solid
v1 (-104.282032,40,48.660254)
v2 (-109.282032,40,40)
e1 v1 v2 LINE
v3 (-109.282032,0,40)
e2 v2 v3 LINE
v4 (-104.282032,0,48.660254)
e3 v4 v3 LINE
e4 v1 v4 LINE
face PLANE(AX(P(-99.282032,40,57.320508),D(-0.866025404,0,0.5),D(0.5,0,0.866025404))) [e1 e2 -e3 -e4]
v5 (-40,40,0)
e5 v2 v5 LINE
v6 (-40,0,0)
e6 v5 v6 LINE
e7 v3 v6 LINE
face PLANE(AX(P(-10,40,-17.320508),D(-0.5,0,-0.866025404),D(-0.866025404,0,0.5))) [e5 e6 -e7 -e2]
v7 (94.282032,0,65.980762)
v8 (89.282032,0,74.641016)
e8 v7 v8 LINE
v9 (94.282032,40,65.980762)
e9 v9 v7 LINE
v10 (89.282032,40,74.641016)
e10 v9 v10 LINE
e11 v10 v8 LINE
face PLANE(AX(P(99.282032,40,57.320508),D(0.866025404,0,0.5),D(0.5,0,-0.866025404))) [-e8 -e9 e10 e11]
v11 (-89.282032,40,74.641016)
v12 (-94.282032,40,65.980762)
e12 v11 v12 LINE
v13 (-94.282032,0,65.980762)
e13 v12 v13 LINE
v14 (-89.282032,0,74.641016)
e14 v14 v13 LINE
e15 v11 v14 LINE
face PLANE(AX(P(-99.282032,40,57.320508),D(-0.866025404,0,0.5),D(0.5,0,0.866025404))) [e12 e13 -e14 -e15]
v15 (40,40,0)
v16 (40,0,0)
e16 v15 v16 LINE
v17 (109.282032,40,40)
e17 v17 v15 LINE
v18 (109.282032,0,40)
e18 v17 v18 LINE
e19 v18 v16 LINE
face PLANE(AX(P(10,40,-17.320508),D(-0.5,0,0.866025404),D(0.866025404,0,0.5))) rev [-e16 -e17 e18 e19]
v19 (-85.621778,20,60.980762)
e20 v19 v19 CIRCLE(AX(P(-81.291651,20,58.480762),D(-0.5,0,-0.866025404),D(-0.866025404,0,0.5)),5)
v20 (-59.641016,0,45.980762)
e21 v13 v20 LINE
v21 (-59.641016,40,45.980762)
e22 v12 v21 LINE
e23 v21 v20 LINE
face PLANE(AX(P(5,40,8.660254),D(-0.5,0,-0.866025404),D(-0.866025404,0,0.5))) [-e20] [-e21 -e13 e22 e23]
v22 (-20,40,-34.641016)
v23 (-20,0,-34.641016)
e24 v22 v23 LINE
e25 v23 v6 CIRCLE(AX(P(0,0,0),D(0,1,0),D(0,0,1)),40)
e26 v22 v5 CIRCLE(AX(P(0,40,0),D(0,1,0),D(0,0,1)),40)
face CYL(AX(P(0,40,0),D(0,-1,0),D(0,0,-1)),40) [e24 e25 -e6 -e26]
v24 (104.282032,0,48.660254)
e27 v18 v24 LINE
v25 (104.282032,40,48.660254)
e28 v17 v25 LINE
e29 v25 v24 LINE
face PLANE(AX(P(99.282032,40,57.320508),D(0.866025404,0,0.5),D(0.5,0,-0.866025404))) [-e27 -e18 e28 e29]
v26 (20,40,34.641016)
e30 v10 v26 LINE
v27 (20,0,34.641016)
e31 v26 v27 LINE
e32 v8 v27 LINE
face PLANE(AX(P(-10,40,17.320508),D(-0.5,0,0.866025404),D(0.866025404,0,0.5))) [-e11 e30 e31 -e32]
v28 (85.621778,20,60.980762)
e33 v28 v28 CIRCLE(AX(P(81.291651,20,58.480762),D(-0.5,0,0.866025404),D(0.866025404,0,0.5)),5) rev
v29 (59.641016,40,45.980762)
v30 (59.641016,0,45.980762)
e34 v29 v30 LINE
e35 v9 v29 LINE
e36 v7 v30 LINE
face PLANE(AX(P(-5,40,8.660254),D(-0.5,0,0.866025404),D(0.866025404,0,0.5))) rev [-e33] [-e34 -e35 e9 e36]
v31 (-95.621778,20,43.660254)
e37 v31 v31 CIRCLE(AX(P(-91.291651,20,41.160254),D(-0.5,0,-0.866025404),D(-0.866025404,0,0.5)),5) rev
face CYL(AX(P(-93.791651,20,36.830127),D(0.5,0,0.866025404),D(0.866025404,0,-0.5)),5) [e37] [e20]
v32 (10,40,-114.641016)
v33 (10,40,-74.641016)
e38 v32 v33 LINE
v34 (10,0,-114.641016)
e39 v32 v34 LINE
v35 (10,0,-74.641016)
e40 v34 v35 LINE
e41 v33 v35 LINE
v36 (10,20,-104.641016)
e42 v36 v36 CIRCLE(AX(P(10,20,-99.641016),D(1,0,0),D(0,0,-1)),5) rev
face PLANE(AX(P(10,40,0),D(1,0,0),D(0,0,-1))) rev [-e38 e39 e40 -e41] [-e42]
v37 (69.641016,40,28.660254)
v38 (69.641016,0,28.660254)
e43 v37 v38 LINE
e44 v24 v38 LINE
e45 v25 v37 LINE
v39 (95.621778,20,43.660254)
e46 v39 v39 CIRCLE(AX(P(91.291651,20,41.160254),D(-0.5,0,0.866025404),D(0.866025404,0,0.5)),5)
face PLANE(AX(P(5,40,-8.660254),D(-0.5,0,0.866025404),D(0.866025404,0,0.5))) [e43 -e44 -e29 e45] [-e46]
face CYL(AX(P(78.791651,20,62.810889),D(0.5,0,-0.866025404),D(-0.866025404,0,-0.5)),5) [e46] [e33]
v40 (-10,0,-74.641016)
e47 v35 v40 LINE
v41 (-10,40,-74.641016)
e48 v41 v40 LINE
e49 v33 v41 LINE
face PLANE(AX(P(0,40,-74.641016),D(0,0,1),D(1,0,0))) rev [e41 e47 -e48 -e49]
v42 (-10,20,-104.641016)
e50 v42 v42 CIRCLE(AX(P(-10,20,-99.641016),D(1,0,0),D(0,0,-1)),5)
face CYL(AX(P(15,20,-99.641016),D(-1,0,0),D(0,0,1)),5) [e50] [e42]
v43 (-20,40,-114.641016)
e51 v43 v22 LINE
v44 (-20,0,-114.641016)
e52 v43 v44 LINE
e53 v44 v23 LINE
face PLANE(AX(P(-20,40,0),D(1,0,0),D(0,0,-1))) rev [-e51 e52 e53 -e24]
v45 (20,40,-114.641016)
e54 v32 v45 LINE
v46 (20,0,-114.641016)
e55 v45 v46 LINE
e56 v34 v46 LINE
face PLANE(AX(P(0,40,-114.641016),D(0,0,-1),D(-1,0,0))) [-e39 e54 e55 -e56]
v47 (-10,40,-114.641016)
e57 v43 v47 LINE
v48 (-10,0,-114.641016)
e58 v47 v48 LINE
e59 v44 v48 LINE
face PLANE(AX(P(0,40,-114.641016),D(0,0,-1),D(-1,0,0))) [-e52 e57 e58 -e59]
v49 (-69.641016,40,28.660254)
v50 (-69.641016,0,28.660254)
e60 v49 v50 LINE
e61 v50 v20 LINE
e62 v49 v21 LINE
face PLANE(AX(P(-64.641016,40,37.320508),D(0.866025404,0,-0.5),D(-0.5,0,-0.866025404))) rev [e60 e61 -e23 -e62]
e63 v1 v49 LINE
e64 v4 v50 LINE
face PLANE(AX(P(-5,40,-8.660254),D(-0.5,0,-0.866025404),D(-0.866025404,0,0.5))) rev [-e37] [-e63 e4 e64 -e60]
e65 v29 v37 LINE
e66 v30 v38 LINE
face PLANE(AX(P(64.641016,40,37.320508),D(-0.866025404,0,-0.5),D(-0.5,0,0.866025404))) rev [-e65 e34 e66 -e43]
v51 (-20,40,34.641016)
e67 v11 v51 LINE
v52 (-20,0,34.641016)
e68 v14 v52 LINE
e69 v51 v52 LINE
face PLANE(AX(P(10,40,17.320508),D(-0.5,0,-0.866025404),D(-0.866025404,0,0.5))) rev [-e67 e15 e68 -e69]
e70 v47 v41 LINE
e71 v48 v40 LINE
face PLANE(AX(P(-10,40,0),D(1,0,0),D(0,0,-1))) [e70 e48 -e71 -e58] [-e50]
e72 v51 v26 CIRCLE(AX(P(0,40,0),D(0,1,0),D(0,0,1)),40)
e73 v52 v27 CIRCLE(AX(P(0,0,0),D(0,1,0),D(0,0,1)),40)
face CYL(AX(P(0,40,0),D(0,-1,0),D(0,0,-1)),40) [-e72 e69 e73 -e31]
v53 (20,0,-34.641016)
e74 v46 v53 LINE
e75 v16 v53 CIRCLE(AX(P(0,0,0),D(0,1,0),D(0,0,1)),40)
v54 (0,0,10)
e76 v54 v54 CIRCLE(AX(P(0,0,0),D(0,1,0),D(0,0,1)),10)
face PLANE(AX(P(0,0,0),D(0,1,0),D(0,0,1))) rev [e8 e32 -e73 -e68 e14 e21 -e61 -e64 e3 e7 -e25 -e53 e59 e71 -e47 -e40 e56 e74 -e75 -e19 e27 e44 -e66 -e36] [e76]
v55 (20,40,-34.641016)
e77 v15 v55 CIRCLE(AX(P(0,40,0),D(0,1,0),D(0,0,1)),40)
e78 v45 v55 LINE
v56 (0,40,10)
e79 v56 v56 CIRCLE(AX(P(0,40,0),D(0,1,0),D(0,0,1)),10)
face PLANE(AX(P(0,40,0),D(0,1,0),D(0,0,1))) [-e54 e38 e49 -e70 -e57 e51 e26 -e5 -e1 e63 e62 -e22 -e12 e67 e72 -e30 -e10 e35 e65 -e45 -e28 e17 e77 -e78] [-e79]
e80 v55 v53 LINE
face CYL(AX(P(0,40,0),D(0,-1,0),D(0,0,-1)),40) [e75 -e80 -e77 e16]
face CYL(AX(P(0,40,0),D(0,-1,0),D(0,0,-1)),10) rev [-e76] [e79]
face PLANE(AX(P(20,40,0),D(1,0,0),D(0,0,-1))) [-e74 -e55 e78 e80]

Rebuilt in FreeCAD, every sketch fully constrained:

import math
import FreeCAD as App
import Part
import Sketcher
from FreeCAD import Vector
Q = App.Units.Quantity

doc = App.newDocument("Part")
params = doc.addObject("Spreadsheet::Sheet", "Params")
for row, (alias, value) in enumerate([
    ("sketch1_diameter", "20 mm"),
    ("sketch1_radius", "40 mm"),
    ("sketch1_width", "10 mm"),
    ("sketch1_width2", "20 mm"),
    ("sketch1_height", "80 mm"),
    ("pad1_length", "40 mm"),
    ("sketch2_diameter", "10 mm"),
    ("pad2_length", "25 mm"),
], start=1):
    params.set(f"A{row}", alias)
    params.set(f"B{row}", "=" + value)
    params.setAlias(f"B{row}", alias)

body = doc.addObject("PartDesign::Body", "Body")

sketch1 = body.newObject("Sketcher::SketchObject", "Sketch")
sketch1.AttachmentSupport = (doc.getObject("XZ_Plane"), [""])
sketch1.MapMode = "FlatFace"
sketch1.addGeometry(Part.LineSegment(Vector(-10, -115, 0), Vector(-20, -115, 0)), False)
sketch1.addGeometry(Part.LineSegment(Vector(-20, -115, 0), Vector(-20, -35, 0)), False)
sketch1.addGeometry(Part.ArcOfCircle(Part.Circle(Vector(0, 0, 0), Vector(0, 0, 1), 40), math.radians(-180), math.radians(-120)), False)
sketch1.addGeometry(Part.LineSegment(Vector(-40, 0, 0), Vector(-109, 40, 0)), False)
sketch1.addGeometry(Part.LineSegment(Vector(-109, 40, 0), Vector(-104, 49, 0)), False)
sketch1.addGeometry(Part.LineSegment(Vector(-104, 49, 0), Vector(-70, 29, 0)), False)
sketch1.addGeometry(Part.LineSegment(Vector(-70, 29, 0), Vector(-60, 46, 0)), False)
sketch1.addGeometry(Part.LineSegment(Vector(-60, 46, 0), Vector(-94, 66, 0)), False)
sketch1.addGeometry(Part.LineSegment(Vector(-94, 66, 0), Vector(-89, 75, 0)), False)
sketch1.addGeometry(Part.LineSegment(Vector(-89, 75, 0), Vector(-20, 35, 0)), False)
sketch1.addGeometry(Part.ArcOfCircle(Part.Circle(Vector(0, 0, 0), Vector(0, 0, 1), 40), math.radians(60), math.radians(120)), False)
sketch1.addGeometry(Part.LineSegment(Vector(20, 35, 0), Vector(89, 75, 0)), False)
sketch1.addGeometry(Part.LineSegment(Vector(89, 75, 0), Vector(94, 66, 0)), False)
sketch1.addGeometry(Part.LineSegment(Vector(94, 66, 0), Vector(60, 46, 0)), False)
sketch1.addGeometry(Part.LineSegment(Vector(60, 46, 0), Vector(70, 29, 0)), False)
sketch1.addGeometry(Part.LineSegment(Vector(70, 29, 0), Vector(104, 49, 0)), False)
sketch1.addGeometry(Part.LineSegment(Vector(104, 49, 0), Vector(109, 40, 0)), False)
sketch1.addGeometry(Part.LineSegment(Vector(109, 40, 0), Vector(40, 0, 0)), False)
sketch1.addGeometry(Part.ArcOfCircle(Part.Circle(Vector(0, 0, 0), Vector(0, 0, 1), 40), math.radians(-60), math.radians(0)), False)
sketch1.addGeometry(Part.LineSegment(Vector(20, -35, 0), Vector(20, -115, 0)), False)
sketch1.addGeometry(Part.LineSegment(Vector(20, -115, 0), Vector(10, -115, 0)), False)
sketch1.addGeometry(Part.LineSegment(Vector(10, -115, 0), Vector(10, -75, 0)), False)
sketch1.addGeometry(Part.LineSegment(Vector(10, -75, 0), Vector(-10, -75, 0)), False)
sketch1.addGeometry(Part.LineSegment(Vector(-10, -75, 0), Vector(-10, -115, 0)), False)
sketch1.addGeometry(Part.Circle(Vector(0, 0, 0), Vector(0, 0, 1), 10), False)
sketch1.addConstraint(Sketcher.Constraint("Coincident", 0, 2, 1, 1))
sketch1.addConstraint(Sketcher.Constraint("Coincident", 1, 2, 2, 2))
sketch1.addConstraint(Sketcher.Constraint("Coincident", 2, 1, 3, 1))
sketch1.addConstraint(Sketcher.Constraint("Coincident", 3, 2, 4, 1))
sketch1.addConstraint(Sketcher.Constraint("Coincident", 4, 2, 5, 1))
sketch1.addConstraint(Sketcher.Constraint("Coincident", 5, 2, 6, 1))
sketch1.addConstraint(Sketcher.Constraint("Coincident", 6, 2, 7, 1))
sketch1.addConstraint(Sketcher.Constraint("Coincident", 7, 2, 8, 1))
sketch1.addConstraint(Sketcher.Constraint("Coincident", 8, 2, 9, 1))
sketch1.addConstraint(Sketcher.Constraint("Coincident", 9, 2, 10, 2))
sketch1.addConstraint(Sketcher.Constraint("Coincident", 10, 1, 11, 1))
sketch1.addConstraint(Sketcher.Constraint("Coincident", 11, 2, 12, 1))
sketch1.addConstraint(Sketcher.Constraint("Coincident", 12, 2, 13, 1))
sketch1.addConstraint(Sketcher.Constraint("Coincident", 13, 2, 14, 1))
sketch1.addConstraint(Sketcher.Constraint("Coincident", 14, 2, 15, 1))
sketch1.addConstraint(Sketcher.Constraint("Coincident", 15, 2, 16, 1))
sketch1.addConstraint(Sketcher.Constraint("Coincident", 16, 2, 17, 1))
sketch1.addConstraint(Sketcher.Constraint("Coincident", 17, 2, 18, 2))
sketch1.addConstraint(Sketcher.Constraint("Coincident", 18, 1, 19, 1))
sketch1.addConstraint(Sketcher.Constraint("Coincident", 19, 2, 20, 1))
sketch1.addConstraint(Sketcher.Constraint("Coincident", 20, 2, 21, 1))
sketch1.addConstraint(Sketcher.Constraint("Coincident", 21, 2, 22, 1))
sketch1.addConstraint(Sketcher.Constraint("Coincident", 22, 2, 23, 1))
sketch1.addConstraint(Sketcher.Constraint("Coincident", 23, 2, 0, 1))
sketch1.addConstraint(Sketcher.Constraint("Horizontal", 0))
sketch1.addConstraint(Sketcher.Constraint("Vertical", 1))
sketch1.addConstraint(Sketcher.Constraint("Vertical", 19))
sketch1.addConstraint(Sketcher.Constraint("Horizontal", 20))
sketch1.addConstraint(Sketcher.Constraint("Vertical", 21))
sketch1.addConstraint(Sketcher.Constraint("Horizontal", 22))
sketch1.addConstraint(Sketcher.Constraint("Vertical", 23))
sketch1.addConstraint(Sketcher.Constraint("Coincident", 2, 3, -1, 1))
sketch1.addConstraint(Sketcher.Constraint("Coincident", 10, 3, -1, 1))
sketch1.addConstraint(Sketcher.Constraint("Coincident", 18, 3, -1, 1))
sketch1.addConstraint(Sketcher.Constraint("Coincident", 24, 3, -1, 1))
sketch1.addConstraint(Sketcher.Constraint("Equal", 2, 10))
sketch1.addConstraint(Sketcher.Constraint("Equal", 10, 18))
sketch1.addConstraint(Sketcher.Constraint("Symmetric", 8, 2, 11, 2, -2))
sketch1.addConstraint(Sketcher.Constraint("Symmetric", 7, 2, 12, 2, -2))
sketch1.addConstraint(Sketcher.Constraint("Symmetric", 6, 2, 13, 2, -2))
sketch1.addConstraint(Sketcher.Constraint("Symmetric", 5, 2, 14, 2, -2))
sketch1.addConstraint(Sketcher.Constraint("Symmetric", 4, 2, 15, 2, -2))
sketch1.addConstraint(Sketcher.Constraint("Symmetric", 3, 2, 16, 2, -2))
sketch1.addConstraint(Sketcher.Constraint("Symmetric", 0, 2, 19, 2, -2))
sketch1.addConstraint(Sketcher.Constraint("PointOnObject", 2, 1, -1))
sketch1.addConstraint(Sketcher.Constraint("PointOnObject", 17, 2, -1))
sketch1.addConstraint(Sketcher.Constraint("Perpendicular", 3, 4))
sketch1.addConstraint(Sketcher.Constraint("Perpendicular", 4, 5))
sketch1.addConstraint(Sketcher.Constraint("Perpendicular", 5, 6))
sketch1.addConstraint(Sketcher.Constraint("Perpendicular", 6, 7))
sketch1.addConstraint(Sketcher.Constraint("Perpendicular", 7, 8))
sketch1.addConstraint(Sketcher.Constraint("Perpendicular", 8, 9))
sketch1.addConstraint(Sketcher.Constraint("Perpendicular", 11, 12))
sketch1.addConstraint(Sketcher.Constraint("Vertical", 1, 2, 9, 2))
sketch1.addConstraint(Sketcher.Constraint("Equal", 0, 20))
sketch1.addConstraint(Sketcher.Constraint("Equal", 5, 7))
sketch1.addConstraint(Sketcher.Constraint("Equal", 4, 8))
sketch1.addConstraint(Sketcher.Constraint("Equal", 3, 9))
sketch1.addConstraint(Sketcher.Constraint("Diameter", 24, Q("20 mm")))
sketch1.addConstraint(Sketcher.Constraint("Radius", 2, Q("40 mm")))
sketch1.addConstraint(Sketcher.Constraint("DistanceX", 0, 2, 0, 1, Q("10 mm")))
sketch1.addConstraint(Sketcher.Constraint("DistanceX", 22, 2, 22, 1, Q("20 mm")))
sketch1.addConstraint(Sketcher.Constraint("DistanceY", 1, 1, 1, 2, Q("80 mm")))
sketch1.addConstraint(Sketcher.Constraint("DistanceY", 21, 1, 21, 2, Q("40 mm")))
sketch1.addConstraint(Sketcher.Constraint("Distance", 3, Q("80 mm")))
sketch1.addConstraint(Sketcher.Constraint("Distance", 4, Q("10 mm")))
sketch1.addConstraint(Sketcher.Constraint("Distance", 5, Q("40 mm")))
sketch1.setExpression("Constraints[58]", "Params.sketch1_diameter")
sketch1.setExpression("Constraints[59]", "Params.sketch1_radius")
sketch1.setExpression("Constraints[60]", "Params.sketch1_width")
sketch1.setExpression("Constraints[61]", "Params.sketch1_width2")
sketch1.setExpression("Constraints[62]", "Params.sketch1_height")
pad1 = body.newObject("PartDesign::Pad", "Pad")
pad1.Profile = sketch1
pad1.setExpression("Length", "Params.pad1_length")
pad1.Reversed = True

sketch2 = body.newObject("Sketcher::SketchObject", "Sketch001")
sketch2.AttachmentSupport = (doc.getObject("YZ_Plane"), [""])
sketch2.MapMode = "FlatFace"
sketch2.AttachmentOffset = App.Placement(Vector(0, 0, -10), App.Rotation())
sketch2.addGeometry(Part.Circle(Vector(20, -100, 0), Vector(0, 0, 1), 5), False)
sketch2.addConstraint(Sketcher.Constraint("Diameter", 0, Q("10 mm")))
sketch2.addConstraint(Sketcher.Constraint("DistanceX", -1, 1, 0, 3, Q("20 mm")))
sketch2.addConstraint(Sketcher.Constraint("DistanceY", 0, 3, -1, 1, Q("99.641016 mm")))
sketch2.setExpression("Constraints[0]", "Params.sketch2_diameter")
pad2 = body.newObject("PartDesign::Pad", "Pad001")
pad2.Profile = sketch2
pad2.setExpression("Length", "Params.pad2_length")
doc.recompute()

polarpattern = body.newObject("PartDesign::PolarPattern", "PolarPattern")
polarpattern.Originals = [pad2]
polarpattern.Axis = (doc.getObject("Y_Axis"), [""])
polarpattern.Angle = 360
polarpattern.Occurrences = 3
body.Tip = polarpattern

doc.recompute()
